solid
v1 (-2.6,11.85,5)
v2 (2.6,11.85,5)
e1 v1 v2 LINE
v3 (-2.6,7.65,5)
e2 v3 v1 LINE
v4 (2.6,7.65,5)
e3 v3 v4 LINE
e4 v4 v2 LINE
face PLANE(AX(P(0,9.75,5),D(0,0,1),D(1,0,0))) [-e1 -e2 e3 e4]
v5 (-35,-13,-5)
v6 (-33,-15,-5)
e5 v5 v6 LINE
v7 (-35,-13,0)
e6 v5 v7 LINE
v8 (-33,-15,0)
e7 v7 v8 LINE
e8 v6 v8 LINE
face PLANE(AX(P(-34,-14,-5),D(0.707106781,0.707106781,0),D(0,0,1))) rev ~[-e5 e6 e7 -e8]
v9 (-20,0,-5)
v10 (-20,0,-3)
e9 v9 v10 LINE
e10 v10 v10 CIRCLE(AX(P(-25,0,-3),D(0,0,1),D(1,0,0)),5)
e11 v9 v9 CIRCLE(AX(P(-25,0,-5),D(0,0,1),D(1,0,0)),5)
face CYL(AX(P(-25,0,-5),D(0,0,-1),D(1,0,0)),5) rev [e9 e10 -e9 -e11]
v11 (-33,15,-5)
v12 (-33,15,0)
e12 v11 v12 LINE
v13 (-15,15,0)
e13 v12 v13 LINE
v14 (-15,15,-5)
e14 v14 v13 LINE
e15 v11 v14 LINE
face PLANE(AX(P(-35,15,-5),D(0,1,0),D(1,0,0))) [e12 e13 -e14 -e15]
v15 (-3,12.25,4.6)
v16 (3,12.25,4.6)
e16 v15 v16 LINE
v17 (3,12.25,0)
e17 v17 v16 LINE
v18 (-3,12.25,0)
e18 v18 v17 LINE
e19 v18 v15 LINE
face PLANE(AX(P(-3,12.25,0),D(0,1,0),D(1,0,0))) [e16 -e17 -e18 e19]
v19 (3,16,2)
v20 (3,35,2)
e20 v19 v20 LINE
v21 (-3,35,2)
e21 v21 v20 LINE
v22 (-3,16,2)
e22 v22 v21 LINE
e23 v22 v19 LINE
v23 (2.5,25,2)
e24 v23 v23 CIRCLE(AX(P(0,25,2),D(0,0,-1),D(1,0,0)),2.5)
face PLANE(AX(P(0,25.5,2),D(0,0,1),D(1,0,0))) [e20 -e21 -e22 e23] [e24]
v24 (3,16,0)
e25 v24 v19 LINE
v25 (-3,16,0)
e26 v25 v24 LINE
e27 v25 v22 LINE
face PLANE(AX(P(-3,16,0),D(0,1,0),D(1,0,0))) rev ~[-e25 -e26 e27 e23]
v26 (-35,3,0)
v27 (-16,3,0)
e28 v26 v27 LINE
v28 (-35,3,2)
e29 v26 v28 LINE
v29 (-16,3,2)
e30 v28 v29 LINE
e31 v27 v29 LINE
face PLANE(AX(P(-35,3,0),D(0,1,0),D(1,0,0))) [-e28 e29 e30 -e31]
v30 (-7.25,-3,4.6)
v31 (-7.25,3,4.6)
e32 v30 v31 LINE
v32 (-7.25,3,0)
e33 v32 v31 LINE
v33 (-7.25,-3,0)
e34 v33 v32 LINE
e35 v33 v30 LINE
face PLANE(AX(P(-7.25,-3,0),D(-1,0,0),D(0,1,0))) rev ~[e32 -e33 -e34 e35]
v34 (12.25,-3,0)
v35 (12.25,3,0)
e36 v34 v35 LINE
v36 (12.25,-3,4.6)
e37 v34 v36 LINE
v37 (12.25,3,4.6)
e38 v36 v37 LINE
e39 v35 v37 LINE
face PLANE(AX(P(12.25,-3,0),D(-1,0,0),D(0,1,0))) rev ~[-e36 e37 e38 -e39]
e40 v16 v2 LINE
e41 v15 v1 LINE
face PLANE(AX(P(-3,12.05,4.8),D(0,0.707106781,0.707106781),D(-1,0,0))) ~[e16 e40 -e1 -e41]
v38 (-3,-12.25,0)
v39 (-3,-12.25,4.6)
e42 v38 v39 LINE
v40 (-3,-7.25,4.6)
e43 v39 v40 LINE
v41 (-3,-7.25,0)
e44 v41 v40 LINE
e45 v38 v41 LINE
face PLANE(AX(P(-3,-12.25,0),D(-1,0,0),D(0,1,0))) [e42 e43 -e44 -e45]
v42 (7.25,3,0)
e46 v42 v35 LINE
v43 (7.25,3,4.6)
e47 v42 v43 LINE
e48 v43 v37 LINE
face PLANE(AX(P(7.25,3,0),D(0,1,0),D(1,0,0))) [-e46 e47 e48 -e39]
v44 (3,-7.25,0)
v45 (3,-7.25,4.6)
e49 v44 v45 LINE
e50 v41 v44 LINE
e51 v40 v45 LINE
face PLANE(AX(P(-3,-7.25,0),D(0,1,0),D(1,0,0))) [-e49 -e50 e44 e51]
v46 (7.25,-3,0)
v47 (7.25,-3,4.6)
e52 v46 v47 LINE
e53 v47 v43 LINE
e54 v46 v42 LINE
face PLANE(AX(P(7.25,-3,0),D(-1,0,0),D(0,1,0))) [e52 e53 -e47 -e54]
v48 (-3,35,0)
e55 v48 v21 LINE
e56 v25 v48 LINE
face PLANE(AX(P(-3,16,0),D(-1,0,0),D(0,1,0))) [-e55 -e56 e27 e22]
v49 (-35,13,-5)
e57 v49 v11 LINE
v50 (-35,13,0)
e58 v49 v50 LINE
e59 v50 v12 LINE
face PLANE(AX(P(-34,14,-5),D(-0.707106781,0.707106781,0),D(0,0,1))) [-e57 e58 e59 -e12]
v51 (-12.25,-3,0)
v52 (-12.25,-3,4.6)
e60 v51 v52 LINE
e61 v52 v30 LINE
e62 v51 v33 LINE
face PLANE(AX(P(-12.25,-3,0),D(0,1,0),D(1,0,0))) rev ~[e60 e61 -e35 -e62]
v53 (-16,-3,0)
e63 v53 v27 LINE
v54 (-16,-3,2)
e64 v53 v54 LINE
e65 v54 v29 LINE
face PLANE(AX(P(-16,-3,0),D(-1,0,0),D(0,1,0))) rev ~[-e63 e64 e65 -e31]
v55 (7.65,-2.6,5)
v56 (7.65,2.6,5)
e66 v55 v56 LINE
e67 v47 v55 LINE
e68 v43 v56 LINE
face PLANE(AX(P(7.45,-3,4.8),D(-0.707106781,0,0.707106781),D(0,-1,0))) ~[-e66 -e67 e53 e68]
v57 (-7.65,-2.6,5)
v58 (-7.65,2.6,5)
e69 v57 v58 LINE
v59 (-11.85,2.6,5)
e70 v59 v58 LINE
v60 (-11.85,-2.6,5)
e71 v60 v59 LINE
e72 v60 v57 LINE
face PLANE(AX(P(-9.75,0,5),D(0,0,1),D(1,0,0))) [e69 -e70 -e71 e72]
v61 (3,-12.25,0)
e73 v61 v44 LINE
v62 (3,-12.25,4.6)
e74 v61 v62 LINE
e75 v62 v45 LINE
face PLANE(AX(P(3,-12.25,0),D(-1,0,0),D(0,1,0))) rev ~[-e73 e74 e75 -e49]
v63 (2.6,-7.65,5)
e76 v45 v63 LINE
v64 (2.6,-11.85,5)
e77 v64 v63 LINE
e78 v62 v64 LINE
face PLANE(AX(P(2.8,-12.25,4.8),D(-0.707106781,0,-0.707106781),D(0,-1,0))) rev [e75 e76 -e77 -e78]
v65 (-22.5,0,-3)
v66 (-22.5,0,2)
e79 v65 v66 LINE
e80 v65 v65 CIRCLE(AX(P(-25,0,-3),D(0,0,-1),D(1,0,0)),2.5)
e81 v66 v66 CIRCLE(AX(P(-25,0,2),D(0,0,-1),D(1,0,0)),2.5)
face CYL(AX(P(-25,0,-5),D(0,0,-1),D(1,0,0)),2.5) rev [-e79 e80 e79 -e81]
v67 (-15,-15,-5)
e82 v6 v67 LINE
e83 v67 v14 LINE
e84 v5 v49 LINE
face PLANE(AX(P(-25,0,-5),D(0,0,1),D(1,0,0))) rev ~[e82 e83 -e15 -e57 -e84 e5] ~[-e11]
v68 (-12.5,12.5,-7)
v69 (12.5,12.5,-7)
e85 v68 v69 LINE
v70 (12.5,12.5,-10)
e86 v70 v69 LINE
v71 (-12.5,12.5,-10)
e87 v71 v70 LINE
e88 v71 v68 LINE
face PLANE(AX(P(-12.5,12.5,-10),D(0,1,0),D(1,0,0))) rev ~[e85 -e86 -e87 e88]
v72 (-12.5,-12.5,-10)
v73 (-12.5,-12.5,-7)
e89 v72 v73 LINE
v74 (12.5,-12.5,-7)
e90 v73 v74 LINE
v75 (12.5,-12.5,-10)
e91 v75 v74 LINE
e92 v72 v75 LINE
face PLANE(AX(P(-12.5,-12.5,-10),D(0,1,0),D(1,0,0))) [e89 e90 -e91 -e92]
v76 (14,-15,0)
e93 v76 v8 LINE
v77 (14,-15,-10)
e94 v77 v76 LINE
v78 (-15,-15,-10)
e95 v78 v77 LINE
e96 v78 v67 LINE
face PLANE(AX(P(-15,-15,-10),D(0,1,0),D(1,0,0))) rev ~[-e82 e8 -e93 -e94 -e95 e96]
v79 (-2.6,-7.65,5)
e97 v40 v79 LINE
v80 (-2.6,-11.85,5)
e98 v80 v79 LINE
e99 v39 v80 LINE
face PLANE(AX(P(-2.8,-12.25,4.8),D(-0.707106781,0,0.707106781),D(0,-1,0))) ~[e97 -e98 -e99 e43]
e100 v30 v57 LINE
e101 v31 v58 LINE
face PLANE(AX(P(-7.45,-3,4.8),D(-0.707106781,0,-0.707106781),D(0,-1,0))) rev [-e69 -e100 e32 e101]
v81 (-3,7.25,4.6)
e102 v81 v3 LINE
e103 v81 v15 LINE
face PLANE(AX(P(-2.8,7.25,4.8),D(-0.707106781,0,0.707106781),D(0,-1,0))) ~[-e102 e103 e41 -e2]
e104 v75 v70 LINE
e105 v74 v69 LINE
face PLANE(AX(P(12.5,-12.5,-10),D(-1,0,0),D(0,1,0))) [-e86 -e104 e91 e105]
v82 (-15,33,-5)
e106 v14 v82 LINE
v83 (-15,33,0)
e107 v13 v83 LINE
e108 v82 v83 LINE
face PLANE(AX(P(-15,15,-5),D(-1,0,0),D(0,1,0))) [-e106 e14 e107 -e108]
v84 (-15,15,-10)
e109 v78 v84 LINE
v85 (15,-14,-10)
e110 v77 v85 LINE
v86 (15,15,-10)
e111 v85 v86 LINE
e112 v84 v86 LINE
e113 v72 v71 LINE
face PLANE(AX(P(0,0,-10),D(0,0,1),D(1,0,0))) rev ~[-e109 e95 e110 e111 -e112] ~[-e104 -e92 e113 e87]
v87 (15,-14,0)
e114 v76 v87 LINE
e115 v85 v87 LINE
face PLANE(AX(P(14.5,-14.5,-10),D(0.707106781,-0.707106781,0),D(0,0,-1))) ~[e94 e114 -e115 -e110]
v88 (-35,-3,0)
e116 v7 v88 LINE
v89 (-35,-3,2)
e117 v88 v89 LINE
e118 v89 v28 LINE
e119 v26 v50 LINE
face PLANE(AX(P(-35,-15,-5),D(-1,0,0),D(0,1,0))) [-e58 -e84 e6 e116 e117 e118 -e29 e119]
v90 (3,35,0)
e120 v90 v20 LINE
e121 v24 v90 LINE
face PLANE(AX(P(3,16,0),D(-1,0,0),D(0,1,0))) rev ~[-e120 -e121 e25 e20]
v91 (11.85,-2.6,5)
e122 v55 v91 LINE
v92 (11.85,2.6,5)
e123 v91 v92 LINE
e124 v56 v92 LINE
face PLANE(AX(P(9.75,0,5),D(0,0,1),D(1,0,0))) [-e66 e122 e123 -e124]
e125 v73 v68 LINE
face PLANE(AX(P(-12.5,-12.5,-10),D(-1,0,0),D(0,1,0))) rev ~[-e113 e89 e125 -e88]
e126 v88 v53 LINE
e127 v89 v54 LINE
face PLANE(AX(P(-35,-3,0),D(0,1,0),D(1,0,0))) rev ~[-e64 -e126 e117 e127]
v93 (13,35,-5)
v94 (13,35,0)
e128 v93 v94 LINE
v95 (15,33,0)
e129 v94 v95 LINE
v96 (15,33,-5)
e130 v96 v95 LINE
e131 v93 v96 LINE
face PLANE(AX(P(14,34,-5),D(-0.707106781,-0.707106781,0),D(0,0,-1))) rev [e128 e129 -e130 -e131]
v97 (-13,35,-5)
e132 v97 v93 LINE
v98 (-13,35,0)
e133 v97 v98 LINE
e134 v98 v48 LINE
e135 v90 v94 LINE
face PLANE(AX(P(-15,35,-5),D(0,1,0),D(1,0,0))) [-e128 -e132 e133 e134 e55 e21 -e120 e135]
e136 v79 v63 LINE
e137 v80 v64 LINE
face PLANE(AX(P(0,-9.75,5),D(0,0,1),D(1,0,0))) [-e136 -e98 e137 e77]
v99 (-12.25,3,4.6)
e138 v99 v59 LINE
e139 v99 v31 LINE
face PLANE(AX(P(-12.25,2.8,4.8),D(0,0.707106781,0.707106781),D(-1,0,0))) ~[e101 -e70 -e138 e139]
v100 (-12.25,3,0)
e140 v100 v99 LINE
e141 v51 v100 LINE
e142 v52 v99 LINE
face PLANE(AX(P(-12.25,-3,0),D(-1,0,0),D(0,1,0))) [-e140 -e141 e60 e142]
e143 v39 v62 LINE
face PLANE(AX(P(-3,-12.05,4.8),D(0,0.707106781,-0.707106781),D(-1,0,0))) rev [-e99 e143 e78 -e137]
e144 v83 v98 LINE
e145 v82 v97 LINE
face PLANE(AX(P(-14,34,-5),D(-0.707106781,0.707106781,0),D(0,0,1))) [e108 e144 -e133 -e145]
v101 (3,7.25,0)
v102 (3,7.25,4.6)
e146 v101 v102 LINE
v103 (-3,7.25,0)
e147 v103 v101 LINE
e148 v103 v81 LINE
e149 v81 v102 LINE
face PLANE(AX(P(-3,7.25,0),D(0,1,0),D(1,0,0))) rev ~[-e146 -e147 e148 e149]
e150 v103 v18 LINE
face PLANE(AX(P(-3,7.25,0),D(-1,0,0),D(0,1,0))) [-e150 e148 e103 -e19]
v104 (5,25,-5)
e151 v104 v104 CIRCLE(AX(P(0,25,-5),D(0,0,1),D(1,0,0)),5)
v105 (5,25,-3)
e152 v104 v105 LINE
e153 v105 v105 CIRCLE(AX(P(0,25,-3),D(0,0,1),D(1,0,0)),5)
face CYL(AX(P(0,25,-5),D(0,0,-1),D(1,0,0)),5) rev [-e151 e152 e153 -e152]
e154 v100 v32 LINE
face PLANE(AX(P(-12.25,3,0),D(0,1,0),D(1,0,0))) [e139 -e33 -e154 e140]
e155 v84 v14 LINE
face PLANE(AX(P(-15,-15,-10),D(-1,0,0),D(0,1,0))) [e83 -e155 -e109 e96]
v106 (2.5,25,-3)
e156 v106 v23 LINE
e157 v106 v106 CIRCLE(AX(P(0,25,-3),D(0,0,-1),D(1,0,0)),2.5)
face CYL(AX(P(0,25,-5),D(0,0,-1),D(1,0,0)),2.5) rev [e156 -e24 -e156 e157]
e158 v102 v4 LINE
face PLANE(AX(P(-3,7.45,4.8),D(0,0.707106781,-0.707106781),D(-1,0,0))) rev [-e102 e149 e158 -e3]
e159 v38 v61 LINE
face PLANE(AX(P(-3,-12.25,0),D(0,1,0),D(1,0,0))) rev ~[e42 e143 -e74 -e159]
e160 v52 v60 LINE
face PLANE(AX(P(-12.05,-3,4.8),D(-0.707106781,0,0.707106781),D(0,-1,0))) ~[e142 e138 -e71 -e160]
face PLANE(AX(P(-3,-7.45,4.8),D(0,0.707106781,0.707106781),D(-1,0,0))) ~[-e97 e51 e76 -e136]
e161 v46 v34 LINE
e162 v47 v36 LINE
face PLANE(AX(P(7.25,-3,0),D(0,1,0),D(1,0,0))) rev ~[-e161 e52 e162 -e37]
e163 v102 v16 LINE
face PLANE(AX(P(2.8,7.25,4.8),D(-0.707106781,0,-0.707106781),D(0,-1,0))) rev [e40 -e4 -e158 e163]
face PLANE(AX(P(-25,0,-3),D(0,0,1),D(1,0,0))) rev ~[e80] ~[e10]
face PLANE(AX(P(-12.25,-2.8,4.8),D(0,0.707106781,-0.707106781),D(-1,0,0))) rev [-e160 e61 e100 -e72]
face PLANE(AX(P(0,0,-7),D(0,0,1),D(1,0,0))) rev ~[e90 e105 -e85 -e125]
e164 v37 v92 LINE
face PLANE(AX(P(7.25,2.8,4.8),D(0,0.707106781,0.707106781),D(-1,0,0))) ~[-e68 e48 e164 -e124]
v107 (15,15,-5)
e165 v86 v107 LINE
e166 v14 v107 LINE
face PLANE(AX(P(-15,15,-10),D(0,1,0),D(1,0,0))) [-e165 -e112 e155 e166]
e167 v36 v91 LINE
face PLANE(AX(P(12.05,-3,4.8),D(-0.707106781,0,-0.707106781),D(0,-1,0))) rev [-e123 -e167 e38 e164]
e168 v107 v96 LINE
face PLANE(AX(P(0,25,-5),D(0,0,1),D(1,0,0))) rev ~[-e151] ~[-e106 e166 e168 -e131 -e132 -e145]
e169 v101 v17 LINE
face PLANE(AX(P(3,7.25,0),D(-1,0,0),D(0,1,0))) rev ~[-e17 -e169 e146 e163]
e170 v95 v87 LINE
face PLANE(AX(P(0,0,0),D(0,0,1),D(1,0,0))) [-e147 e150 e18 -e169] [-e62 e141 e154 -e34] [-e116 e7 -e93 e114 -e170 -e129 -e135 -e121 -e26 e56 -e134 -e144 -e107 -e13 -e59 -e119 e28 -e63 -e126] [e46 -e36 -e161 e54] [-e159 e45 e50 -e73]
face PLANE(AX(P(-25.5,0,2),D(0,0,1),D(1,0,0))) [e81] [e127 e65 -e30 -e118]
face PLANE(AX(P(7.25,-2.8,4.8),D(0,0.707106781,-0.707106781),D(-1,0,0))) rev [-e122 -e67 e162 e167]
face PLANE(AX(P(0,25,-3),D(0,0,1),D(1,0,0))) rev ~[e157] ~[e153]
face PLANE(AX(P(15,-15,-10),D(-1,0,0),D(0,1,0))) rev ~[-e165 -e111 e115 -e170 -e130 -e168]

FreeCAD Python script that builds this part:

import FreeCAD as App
import Part
import Sketcher

V = App.Vector
Q = App.Units.Quantity


def edges_at(feature, points):
    """Names of the edges that pass closest to the given points."""
    edges = feature.Shape.Edges
    near = lambda p: min(range(len(edges)), key=lambda i: edges[i].distToShape(Part.Vertex(*p))[0])
    return sorted({f"Edge{near(p) + 1}" for p in points})

doc = App.newDocument("Part")
params = doc.addObject("Spreadsheet::Sheet", "Params")
for row, (alias, value) in enumerate([
    ("sketch1_width", "25 mm"),
    ("pad1_length", "3 mm"),
    ("sketch2_diameter", "10 mm"),
    ("pad2_length", "2 mm"),
    ("sketch3_diameter", "10 mm"),
    ("pad3_length", "2 mm"),
    ("sketch4_width", "5 mm"),
    ("sketch4_height", "6 mm"),
    ("pad4_length", "5 mm"),
    ("chamfer_size", "0.4 mm"),
    ("sketch5_width", "5 mm"),
    ("sketch5_height", "6 mm"),
    ("pad5_length", "5 mm"),
    ("chamfer2_size", "0.4 mm"),
    ("sketch6_width", "6 mm"),
    ("sketch6_height", "5 mm"),
    ("pad6_length", "5 mm"),
    ("chamfer3_size", "0.4 mm"),
    ("sketch7_diameter", "5 mm"),
    ("pad7_length", "10 mm"),
    ("sketch8_width", "30 mm"),
    ("sketch8_height", "20 mm"),
    ("pad8_length", "5 mm"),
    ("sketch9_width", "6 mm"),
    ("sketch9_height", "19 mm"),
    ("pad9_length", "2 mm"),
    ("chamfer4_size", "2 mm"),
    ("sketch10_diameter", "5 mm"),
    ("pad10_length", "10 mm"),
    ("sketch11_width", "20 mm"),
    ("sketch11_height", "30 mm"),
    ("pad11_length", "5 mm"),
    ("sketch12_width", "19 mm"),
    ("sketch12_height", "6 mm"),
    ("pad12_length", "2 mm"),
    ("chamfer5_size", "2 mm"),
    ("sketch13_width", "30 mm"),
    ("pad13_length", "10 mm"),
    ("sketch14_width", "6 mm"),
    ("sketch14_height", "5 mm"),
    ("pad14_length", "5 mm"),
    ("chamfer6_size", "0.4 mm"),
    ("chamfer7_size", "1 mm"),
], start=1):
    params.set(f"A{row}", alias)
    params.set(f"B{row}", "=" + value)
    params.setAlias(f"B{row}", alias)

body = doc.addObject("PartDesign::Body", "Body")

sketch1 = body.newObject("Sketcher::SketchObject", "Sketch")
sketch1.AttachmentSupport = (doc.getObject("XY_Plane"), [""])
sketch1.MapMode = "FlatFace"
sketch1.AttachmentOffset = App.Placement(V(0, 0, -10), App.Rotation())
sketch1.addGeometry(Part.LineSegment(V(-12, 12, 0), V(-12, -12, 0)), False)
sketch1.addGeometry(Part.LineSegment(V(-12, -12, 0), V(12, -12, 0)), False)
sketch1.addGeometry(Part.LineSegment(V(12, -12, 0), V(12, 12, 0)), False)
sketch1.addGeometry(Part.LineSegment(V(12, 12, 0), V(-12, 12, 0)), False)
sketch1.addConstraint(Sketcher.Constraint("Coincident", 0, 2, 1, 1))
sketch1.addConstraint(Sketcher.Constraint("Coincident", 1, 2, 2, 1))
sketch1.addConstraint(Sketcher.Constraint("Coincident", 2, 2, 3, 1))
sketch1.addConstraint(Sketcher.Constraint("Coincident", 3, 2, 0, 1))
sketch1.addConstraint(Sketcher.Constraint("Vertical", 0))
sketch1.addConstraint(Sketcher.Constraint("Horizontal", 1))
sketch1.addConstraint(Sketcher.Constraint("Vertical", 2))
sketch1.addConstraint(Sketcher.Constraint("Horizontal", 3))
sketch1.addConstraint(Sketcher.Constraint("Symmetric", 0, 2, 2, 2, -1, 1))
sketch1.addConstraint(Sketcher.Constraint("Equal", 3, 0))
sketch1.addConstraint(Sketcher.Constraint("DistanceX", 1, 1, 1, 2, Q("25 mm")))
sketch1.setExpression("Constraints[10]", "Params.sketch1_width")
pad1 = body.newObject("PartDesign::Pad", "Pad")
pad1.Profile = sketch1
pad1.setExpression("Length", "Params.pad1_length")
body2 = doc.addObject("PartDesign::Body", "Body001")

sketch2 = body2.newObject("Sketcher::SketchObject", "Sketch001")
sketch2.AttachmentSupport = (doc.getObject("XY_Plane001"), [""])
sketch2.MapMode = "FlatFace"
sketch2.AttachmentOffset = App.Placement(V(0, 0, -5), App.Rotation())
sketch2.addGeometry(Part.Circle(V(0, 25, 0), V(0, 0, 1), 5), False)
sketch2.addConstraint(Sketcher.Constraint("PointOnObject", 0, 3, -2))
sketch2.addConstraint(Sketcher.Constraint("Diameter", 0, Q("10 mm")))
sketch2.addConstraint(Sketcher.Constraint("DistanceY", -1, 1, 0, 3, Q("25 mm")))
sketch2.setExpression("Constraints[1]", "Params.sketch2_diameter")
pad2 = body2.newObject("PartDesign::Pad", "Pad001")
pad2.Profile = sketch2
pad2.setExpression("Length", "Params.pad2_length")
body3 = doc.addObject("PartDesign::Body", "Body002")

sketch3 = body3.newObject("Sketcher::SketchObject", "Sketch002")
sketch3.AttachmentSupport = (doc.getObject("XY_Plane002"), [""])
sketch3.MapMode = "FlatFace"
sketch3.AttachmentOffset = App.Placement(V(0, 0, -5), App.Rotation())
sketch3.addGeometry(Part.Circle(V(-25, 0, 0), V(0, 0, 1), 5), False)
sketch3.addConstraint(Sketcher.Constraint("PointOnObject", 0, 3, -1))
sketch3.addConstraint(Sketcher.Constraint("Diameter", 0, Q("10 mm")))
sketch3.addConstraint(Sketcher.Constraint("DistanceX", 0, 3, -1, 1, Q("25 mm")))
sketch3.setExpression("Constraints[1]", "Params.sketch3_diameter")
pad3 = body3.newObject("PartDesign::Pad", "Pad002")
pad3.Profile = sketch3
pad3.setExpression("Length", "Params.pad3_length")
body4 = doc.addObject("PartDesign::Body", "Body003")

sketch4 = body4.newObject("Sketcher::SketchObject", "Sketch003")
sketch4.AttachmentSupport = (doc.getObject("XY_Plane003"), [""])
sketch4.MapMode = "FlatFace"
sketch4.addGeometry(Part.LineSegment(V(-12, 3, 0), V(-12, -3, 0)), False)
sketch4.addGeometry(Part.LineSegment(V(-12, -3, 0), V(-7, -3, 0)), False)
sketch4.addGeometry(Part.LineSegment(V(-7, -3, 0), V(-7, 3, 0)), False)
sketch4.addGeometry(Part.LineSegment(V(-7, 3, 0), V(-12, 3, 0)), False)
sketch4.addConstraint(Sketcher.Constraint("Coincident", 0, 2, 1, 1))
sketch4.addConstraint(Sketcher.Constraint("Coincident", 1, 2, 2, 1))
sketch4.addConstraint(Sketcher.Constraint("Coincident", 2, 2, 3, 1))
sketch4.addConstraint(Sketcher.Constraint("Coincident", 3, 2, 0, 1))
sketch4.addConstraint(Sketcher.Constraint("Vertical", 0))
sketch4.addConstraint(Sketcher.Constraint("Horizontal", 1))
sketch4.addConstraint(Sketcher.Constraint("Vertical", 2))
sketch4.addConstraint(Sketcher.Constraint("Horizontal", 3))
sketch4.addConstraint(Sketcher.Constraint("DistanceX", 1, 1, 1, 2, Q("5 mm")))
sketch4.addConstraint(Sketcher.Constraint("DistanceY", 0, 2, 0, 1, Q("6 mm")))
sketch4.addConstraint(Sketcher.Constraint("DistanceY", 0, 2, -1, 1, Q("3 mm")))
sketch4.addConstraint(Sketcher.Constraint("DistanceX", 0, 2, -1, 1, Q("12.25 mm")))
sketch4.setExpression("Constraints[8]", "Params.sketch4_width")
sketch4.setExpression("Constraints[9]", "Params.sketch4_height")
pad4 = body4.newObject("PartDesign::Pad", "Pad003")
pad4.Profile = sketch4
pad4.setExpression("Length", "Params.pad4_length")
doc.recompute()

chamfer = body4.newObject("PartDesign::Chamfer", "Chamfer")
chamfer.Base = (pad4, edges_at(pad4, [
    (-12.25, 0, 5),
    (-7.25, 0, 5),
    (-9.75, -3, 5),
    (-9.75, 3, 5),
]))
chamfer.setExpression("Size", "Params.chamfer_size")
body5 = doc.addObject("PartDesign::Body", "Body004")

sketch5 = body5.newObject("Sketcher::SketchObject", "Sketch004")
sketch5.AttachmentSupport = (doc.getObject("XY_Plane004"), [""])
sketch5.MapMode = "FlatFace"
sketch5.addGeometry(Part.LineSegment(V(7, 3, 0), V(7, -3, 0)), False)
sketch5.addGeometry(Part.LineSegment(V(7, -3, 0), V(12, -3, 0)), False)
sketch5.addGeometry(Part.LineSegment(V(12, -3, 0), V(12, 3, 0)), False)
sketch5.addGeometry(Part.LineSegment(V(12, 3, 0), V(7, 3, 0)), False)
sketch5.addConstraint(Sketcher.Constraint("Coincident", 0, 2, 1, 1))
sketch5.addConstraint(Sketcher.Constraint("Coincident", 1, 2, 2, 1))
sketch5.addConstraint(Sketcher.Constraint("Coincident", 2, 2, 3, 1))
sketch5.addConstraint(Sketcher.Constraint("Coincident", 3, 2, 0, 1))
sketch5.addConstraint(Sketcher.Constraint("Vertical", 0))
sketch5.addConstraint(Sketcher.Constraint("Horizontal", 1))
sketch5.addConstraint(Sketcher.Constraint("Vertical", 2))
sketch5.addConstraint(Sketcher.Constraint("Horizontal", 3))
sketch5.addConstraint(Sketcher.Constraint("DistanceX", 1, 1, 1, 2, Q("5 mm")))
sketch5.addConstraint(Sketcher.Constraint("DistanceY", 0, 2, 0, 1, Q("6 mm")))
sketch5.addConstraint(Sketcher.Constraint("DistanceY", 0, 2, -1, 1, Q("3 mm")))
sketch5.addConstraint(Sketcher.Constraint("DistanceX", -1, 1, 0, 2, Q("7.25 mm")))
sketch5.setExpression("Constraints[8]", "Params.sketch5_width")
sketch5.setExpression("Constraints[9]", "Params.sketch5_height")
pad5 = body5.newObject("PartDesign::Pad", "Pad004")
pad5.Profile = sketch5
pad5.setExpression("Length", "Params.pad5_length")
doc.recompute()

chamfer2 = body5.newObject("PartDesign::Chamfer", "Chamfer001")
chamfer2.Base = (pad5, edges_at(pad5, [
    (7.25, 0, 5),
    (12.25, 0, 5),
    (9.75, -3, 5),
    (9.75, 3, 5),
]))
chamfer2.setExpression("Size", "Params.chamfer2_size")
body6 = doc.addObject("PartDesign::Body", "Body005")

sketch6 = body6.newObject("Sketcher::SketchObject", "Sketch005")
sketch6.AttachmentSupport = (doc.getObject("XY_Plane005"), [""])
sketch6.MapMode = "FlatFace"
sketch6.addGeometry(Part.LineSegment(V(-3, -7, 0), V(-3, -12, 0)), False)
sketch6.addGeometry(Part.LineSegment(V(-3, -12, 0), V(3, -12, 0)), False)
sketch6.addGeometry(Part.LineSegment(V(3, -12, 0), V(3, -7, 0)), False)
sketch6.addGeometry(Part.LineSegment(V(3, -7, 0), V(-3, -7, 0)), False)
sketch6.addConstraint(Sketcher.Constraint("Coincident", 0, 2, 1, 1))
sketch6.addConstraint(Sketcher.Constraint("Coincident", 1, 2, 2, 1))
sketch6.addConstraint(Sketcher.Constraint("Coincident", 2, 2, 3, 1))
sketch6.addConstraint(Sketcher.Constraint("Coincident", 3, 2, 0, 1))
sketch6.addConstraint(Sketcher.Constraint("Vertical", 0))
sketch6.addConstraint(Sketcher.Constraint("Horizontal", 1))
sketch6.addConstraint(Sketcher.Constraint("Vertical", 2))
sketch6.addConstraint(Sketcher.Constraint("Horizontal", 3))
sketch6.addConstraint(Sketcher.Constraint("DistanceX", 1, 1, 1, 2, Q("6 mm")))
sketch6.addConstraint(Sketcher.Constraint("DistanceY", 0, 2, 0, 1, Q("5 mm")))
sketch6.addConstraint(Sketcher.Constraint("DistanceX", 0, 2, -1, 1, Q("3 mm")))
sketch6.addConstraint(Sketcher.Constraint("DistanceY", 0, 2, -1, 1, Q("12.25 mm")))
sketch6.setExpression("Constraints[8]", "Params.sketch6_width")
sketch6.setExpression("Constraints[9]", "Params.sketch6_height")
pad6 = body6.newObject("PartDesign::Pad", "Pad005")
pad6.Profile = sketch6
pad6.setExpression("Length", "Params.pad6_length")
doc.recompute()

chamfer3 = body6.newObject("PartDesign::Chamfer", "Chamfer002")
chamfer3.Base = (pad6, edges_at(pad6, [
    (-3, -9.75, 5),
    (3, -9.75, 5),
    (0, -12.25, 5),
    (0, -7.25, 5),
]))
chamfer3.setExpression("Size", "Params.chamfer3_size")
body7 = doc.addObject("PartDesign::Body", "Body006")

sketch7 = body7.newObject("Sketcher::SketchObject", "Sketch006")
sketch7.AttachmentSupport = (doc.getObject("XY_Plane006"), [""])
sketch7.MapMode = "FlatFace"
sketch7.AttachmentOffset = App.Placement(V(0, 0, -5), App.Rotation())
sketch7.addGeometry(Part.Circle(V(0, 25, 0), V(0, 0, 1), 2.5), False)
sketch7.addConstraint(Sketcher.Constraint("PointOnObject", 0, 3, -2))
sketch7.addConstraint(Sketcher.Constraint("Diameter", 0, Q("5 mm")))
sketch7.addConstraint(Sketcher.Constraint("DistanceY", -1, 1, 0, 3, Q("25 mm")))
sketch7.setExpression("Constraints[1]", "Params.sketch7_diameter")
pad7 = body7.newObject("PartDesign::Pad", "Pad006")
pad7.Profile = sketch7
pad7.setExpression("Length", "Params.pad7_length")
body8 = doc.addObject("PartDesign::Body", "Body007")

sketch8 = body8.newObject("Sketcher::SketchObject", "Sketch007")
sketch8.AttachmentSupport = (doc.getObject("XY_Plane007"), [""])
sketch8.MapMode = "FlatFace"
sketch8.AttachmentOffset = App.Placement(V(0, 0, -5), App.Rotation())
sketch8.addGeometry(Part.LineSegment(V(-15, 35, 0), V(-15, 15, 0)), False)
sketch8.addGeometry(Part.LineSegment(V(-15, 15, 0), V(15, 15, 0)), False)
sketch8.addGeometry(Part.LineSegment(V(15, 15, 0), V(15, 35, 0)), False)
sketch8.addGeometry(Part.LineSegment(V(15, 35, 0), V(-15, 35, 0)), False)
sketch8.addConstraint(Sketcher.Constraint("Coincident", 0, 2, 1, 1))
sketch8.addConstraint(Sketcher.Constraint("Coincident", 1, 2, 2, 1))
sketch8.addConstraint(Sketcher.Constraint("Coincident", 2, 2, 3, 1))
sketch8.addConstraint(Sketcher.Constraint("Coincident", 3, 2, 0, 1))
sketch8.addConstraint(Sketcher.Constraint("Vertical", 0))
sketch8.addConstraint(Sketcher.Constraint("Horizontal", 1))
sketch8.addConstraint(Sketcher.Constraint("Vertical", 2))
sketch8.addConstraint(Sketcher.Constraint("Horizontal", 3))
sketch8.addConstraint(Sketcher.Constraint("DistanceX", 1, 1, 1, 2, Q("30 mm")))
sketch8.addConstraint(Sketcher.Constraint("DistanceY", 0, 2, 0, 1, Q("20 mm")))
sketch8.addConstraint(Sketcher.Constraint("DistanceX", 0, 2, -1, 1, Q("15 mm")))
sketch8.addConstraint(Sketcher.Constraint("DistanceY", -1, 1, 0, 2, Q("15 mm")))
sketch8.setExpression("Constraints[8]", "Params.sketch8_width")
sketch8.setExpression("Constraints[9]", "Params.sketch8_height")
pad8 = body8.newObject("PartDesign::Pad", "Pad007")
pad8.Profile = sketch8
pad8.setExpression("Length", "Params.pad8_length")
body9 = doc.addObject("PartDesign::Body", "Body008")

sketch9 = body9.newObject("Sketcher::SketchObject", "Sketch008")
sketch9.AttachmentSupport = (doc.getObject("XY_Plane008"), [""])
sketch9.MapMode = "FlatFace"
sketch9.addGeometry(Part.LineSegment(V(-3, 35, 0), V(-3, 16, 0)), False)
sketch9.addGeometry(Part.LineSegment(V(-3, 16, 0), V(3, 16, 0)), False)
sketch9.addGeometry(Part.LineSegment(V(3, 16, 0), V(3, 35, 0)), False)
sketch9.addGeometry(Part.LineSegment(V(3, 35, 0), V(-3, 35, 0)), False)
sketch9.addConstraint(Sketcher.Constraint("Coincident", 0, 2, 1, 1))
sketch9.addConstraint(Sketcher.Constraint("Coincident", 1, 2, 2, 1))
sketch9.addConstraint(Sketcher.Constraint("Coincident", 2, 2, 3, 1))
sketch9.addConstraint(Sketcher.Constraint("Coincident", 3, 2, 0, 1))
sketch9.addConstraint(Sketcher.Constraint("Vertical", 0))
sketch9.addConstraint(Sketcher.Constraint("Horizontal", 1))
sketch9.addConstraint(Sketcher.Constraint("Vertical", 2))
sketch9.addConstraint(Sketcher.Constraint("Horizontal", 3))
sketch9.addConstraint(Sketcher.Constraint("DistanceX", 1, 1, 1, 2, Q("6 mm")))
sketch9.addConstraint(Sketcher.Constraint("DistanceY", 0, 2, 0, 1, Q("19 mm")))
sketch9.addConstraint(Sketcher.Constraint("DistanceX", 0, 2, -1, 1, Q("3 mm")))
sketch9.addConstraint(Sketcher.Constraint("DistanceY", -1, 1, 0, 2, Q("16 mm")))
sketch9.setExpression("Constraints[8]", "Params.sketch9_width")
sketch9.setExpression("Constraints[9]", "Params.sketch9_height")
pad9 = body9.newObject("PartDesign::Pad", "Pad008")
pad9.Profile = sketch9
pad9.setExpression("Length", "Params.pad9_length")
doc.recompute()

boolean = body9.newObject("PartDesign::Boolean", "Boolean")
boolean.Type = "Fuse"
boolean.addObjects([body8])
doc.recompute()

boolean2 = body9.newObject("PartDesign::Boolean", "Boolean001")
boolean2.Type = "Cut"
boolean2.addObjects([body7])
doc.recompute()

chamfer4 = body9.newObject("PartDesign::Chamfer", "Chamfer003")
chamfer4.Base = (boolean2, edges_at(boolean2, [(-15, 35, -2.5), (15, 35, -2.5)]))
chamfer4.setExpression("Size", "Params.chamfer4_size")
body10 = doc.addObject("PartDesign::Body", "Body009")

sketch10 = body10.newObject("Sketcher::SketchObject", "Sketch009")
sketch10.AttachmentSupport = (doc.getObject("XY_Plane009"), [""])
sketch10.MapMode = "FlatFace"
sketch10.AttachmentOffset = App.Placement(V(0, 0, -5), App.Rotation())
sketch10.addGeometry(Part.Circle(V(-25, 0, 0), V(0, 0, 1), 2.5), False)
sketch10.addConstraint(Sketcher.Constraint("PointOnObject", 0, 3, -1))
sketch10.addConstraint(Sketcher.Constraint("Diameter", 0, Q("5 mm")))
sketch10.addConstraint(Sketcher.Constraint("DistanceX", 0, 3, -1, 1, Q("25 mm")))
sketch10.setExpression("Constraints[1]", "Params.sketch10_diameter")
pad10 = body10.newObject("PartDesign::Pad", "Pad009")
pad10.Profile = sketch10
pad10.setExpression("Length", "Params.pad10_length")
body11 = doc.addObject("PartDesign::Body", "Body010")

sketch11 = body11.newObject("Sketcher::SketchObject", "Sketch010")
sketch11.AttachmentSupport = (doc.getObject("XY_Plane010"), [""])
sketch11.MapMode = "FlatFace"
sketch11.AttachmentOffset = App.Placement(V(0, 0, -5), App.Rotation())
sketch11.addGeometry(Part.LineSegment(V(-35, 15, 0), V(-35, -15, 0)), False)
sketch11.addGeometry(Part.LineSegment(V(-35, -15, 0), V(-15, -15, 0)), False)
sketch11.addGeometry(Part.LineSegment(V(-15, -15, 0), V(-15, 15, 0)), False)
sketch11.addGeometry(Part.LineSegment(V(-15, 15, 0), V(-35, 15, 0)), False)
sketch11.addConstraint(Sketcher.Constraint("Coincident", 0, 2, 1, 1))
sketch11.addConstraint(Sketcher.Constraint("Coincident", 1, 2, 2, 1))
sketch11.addConstraint(Sketcher.Constraint("Coincident", 2, 2, 3, 1))
sketch11.addConstraint(Sketcher.Constraint("Coincident", 3, 2, 0, 1))
sketch11.addConstraint(Sketcher.Constraint("Vertical", 0))
sketch11.addConstraint(Sketcher.Constraint("Horizontal", 1))
sketch11.addConstraint(Sketcher.Constraint("Vertical", 2))
sketch11.addConstraint(Sketcher.Constraint("Horizontal", 3))
sketch11.addConstraint(Sketcher.Constraint("DistanceX", 1, 1, 1, 2, Q("20 mm")))
sketch11.addConstraint(Sketcher.Constraint("DistanceY", 0, 2, 0, 1, Q("30 mm")))
sketch11.addConstraint(Sketcher.Constraint("DistanceX", 0, 2, -1, 1, Q("35 mm")))
sketch11.addConstraint(Sketcher.Constraint("DistanceY", 0, 2, -1, 1, Q("15 mm")))
sketch11.setExpression("Constraints[8]", "Params.sketch11_width")
sketch11.setExpression("Constraints[9]", "Params.sketch11_height")
pad11 = body11.newObject("PartDesign::Pad", "Pad010")
pad11.Profile = sketch11
pad11.setExpression("Length", "Params.pad11_length")
body12 = doc.addObject("PartDesign::Body", "Body011")

sketch12 = body12.newObject("Sketcher::SketchObject", "Sketch011")
sketch12.AttachmentSupport = (doc.getObject("XY_Plane011"), [""])
sketch12.MapMode = "FlatFace"
sketch12.addGeometry(Part.LineSegment(V(-35, 3, 0), V(-35, -3, 0)), False)
sketch12.addGeometry(Part.LineSegment(V(-35, -3, 0), V(-16, -3, 0)), False)
sketch12.addGeometry(Part.LineSegment(V(-16, -3, 0), V(-16, 3, 0)), False)
sketch12.addGeometry(Part.LineSegment(V(-16, 3, 0), V(-35, 3, 0)), False)
sketch12.addConstraint(Sketcher.Constraint("Coincident", 0, 2, 1, 1))
sketch12.addConstraint(Sketcher.Constraint("Coincident", 1, 2, 2, 1))
sketch12.addConstraint(Sketcher.Constraint("Coincident", 2, 2, 3, 1))
sketch12.addConstraint(Sketcher.Constraint("Coincident", 3, 2, 0, 1))
sketch12.addConstraint(Sketcher.Constraint("Vertical", 0))
sketch12.addConstraint(Sketcher.Constraint("Horizontal", 1))
sketch12.addConstraint(Sketcher.Constraint("Vertical", 2))
sketch12.addConstraint(Sketcher.Constraint("Horizontal", 3))
sketch12.addConstraint(Sketcher.Constraint("DistanceX", 1, 1, 1, 2, Q("19 mm")))
sketch12.addConstraint(Sketcher.Constraint("DistanceY", 0, 2, 0, 1, Q("6 mm")))
sketch12.addConstraint(Sketcher.Constraint("DistanceX", 0, 2, -1, 1, Q("35 mm")))
sketch12.addConstraint(Sketcher.Constraint("DistanceY", 0, 2, -1, 1, Q("3 mm")))
sketch12.setExpression("Constraints[8]", "Params.sketch12_width")
sketch12.setExpression("Constraints[9]", "Params.sketch12_height")
pad12 = body12.newObject("PartDesign::Pad", "Pad011")
pad12.Profile = sketch12
pad12.setExpression("Length", "Params.pad12_length")
doc.recompute()

boolean3 = body12.newObject("PartDesign::Boolean", "Boolean002")
boolean3.Type = "Fuse"
boolean3.addObjects([body11])
doc.recompute()

boolean4 = body12.newObject("PartDesign::Boolean", "Boolean003")
boolean4.Type = "Cut"
boolean4.addObjects([body10])
doc.recompute()

chamfer5 = body12.newObject("PartDesign::Chamfer", "Chamfer004")
chamfer5.Base = (boolean4, edges_at(boolean4, [(-35, -15, -2.5), (-35, 15, -2.5)]))
chamfer5.setExpression("Size", "Params.chamfer5_size")
body13 = doc.addObject("PartDesign::Body", "Body012")

sketch13 = body13.newObject("Sketcher::SketchObject", "Sketch012")
sketch13.AttachmentSupport = (doc.getObject("XY_Plane012"), [""])
sketch13.MapMode = "FlatFace"
sketch13.AttachmentOffset = App.Placement(V(0, 0, -10), App.Rotation())
sketch13.addGeometry(Part.LineSegment(V(-15, 15, 0), V(-15, -15, 0)), False)
sketch13.addGeometry(Part.LineSegment(V(-15, -15, 0), V(15, -15, 0)), False)
sketch13.addGeometry(Part.LineSegment(V(15, -15, 0), V(15, 15, 0)), False)
sketch13.addGeometry(Part.LineSegment(V(15, 15, 0), V(-15, 15, 0)), False)
sketch13.addConstraint(Sketcher.Constraint("Coincident", 0, 2, 1, 1))
sketch13.addConstraint(Sketcher.Constraint("Coincident", 1, 2, 2, 1))
sketch13.addConstraint(Sketcher.Constraint("Coincident", 2, 2, 3, 1))
sketch13.addConstraint(Sketcher.Constraint("Coincident", 3, 2, 0, 1))
sketch13.addConstraint(Sketcher.Constraint("Vertical", 0))
sketch13.addConstraint(Sketcher.Constraint("Horizontal", 1))
sketch13.addConstraint(Sketcher.Constraint("Vertical", 2))
sketch13.addConstraint(Sketcher.Constraint("Horizontal", 3))
sketch13.addConstraint(Sketcher.Constraint("Symmetric", 0, 2, 2, 2, -1, 1))
sketch13.addConstraint(Sketcher.Constraint("Equal", 3, 0))
sketch13.addConstraint(Sketcher.Constraint("DistanceX", 1, 1, 1, 2, Q("30 mm")))
sketch13.setExpression("Constraints[10]", "Params.sketch13_width")
pad13 = body13.newObject("PartDesign::Pad", "Pad012")
pad13.Profile = sketch13
pad13.setExpression("Length", "Params.pad13_length")
body14 = doc.addObject("PartDesign::Body", "Body013")
body14.AllowCompound = True

sketch14 = body14.newObject("Sketcher::SketchObject", "Sketch013")
sketch14.AttachmentSupport = (doc.getObject("XY_Plane013"), [""])
sketch14.MapMode = "FlatFace"
sketch14.addGeometry(Part.LineSegment(V(-3, 12, 0), V(-3, 7, 0)), False)
sketch14.addGeometry(Part.LineSegment(V(-3, 7, 0), V(3, 7, 0)), False)
sketch14.addGeometry(Part.LineSegment(V(3, 7, 0), V(3, 12, 0)), False)
sketch14.addGeometry(Part.LineSegment(V(3, 12, 0), V(-3, 12, 0)), False)
sketch14.addConstraint(Sketcher.Constraint("Coincident", 0, 2, 1, 1))
sketch14.addConstraint(Sketcher.Constraint("Coincident", 1, 2, 2, 1))
sketch14.addConstraint(Sketcher.Constraint("Coincident", 2, 2, 3, 1))
sketch14.addConstraint(Sketcher.Constraint("Coincident", 3, 2, 0, 1))
sketch14.addConstraint(Sketcher.Constraint("Vertical", 0))
sketch14.addConstraint(Sketcher.Constraint("Horizontal", 1))
sketch14.addConstraint(Sketcher.Constraint("Vertical", 2))
sketch14.addConstraint(Sketcher.Constraint("Horizontal", 3))
sketch14.addConstraint(Sketcher.Constraint("DistanceX", 1, 1, 1, 2, Q("6 mm")))
sketch14.addConstraint(Sketcher.Constraint("DistanceY", 0, 2, 0, 1, Q("5 mm")))
sketch14.addConstraint(Sketcher.Constraint("DistanceX", 0, 2, -1, 1, Q("3 mm")))
sketch14.addConstraint(Sketcher.Constraint("DistanceY", -1, 1, 0, 2, Q("7.25 mm")))
sketch14.setExpression("Constraints[8]", "Params.sketch14_width")
sketch14.setExpression("Constraints[9]", "Params.sketch14_height")
pad14 = body14.newObject("PartDesign::Pad", "Pad013")
pad14.Profile = sketch14
pad14.setExpression("Length", "Params.pad14_length")
doc.recompute()

chamfer6 = body14.newObject("PartDesign::Chamfer", "Chamfer005")
chamfer6.Base = (pad14, edges_at(pad14, [
    (-3, 9.75, 5),
    (3, 9.75, 5),
    (0, 7.25, 5),
    (0, 12.25, 5),
]))
chamfer6.setExpression("Size", "Params.chamfer6_size")
doc.recompute()

boolean5 = body14.newObject("PartDesign::Boolean", "Boolean004")
boolean5.Type = "Fuse"
boolean5.addObjects([body4])
doc.recompute()

boolean6 = body14.newObject("PartDesign::Boolean", "Boolean005")
boolean6.Type = "Fuse"
boolean6.addObjects([body5])
doc.recompute()

boolean7 = body14.newObject("PartDesign::Boolean", "Boolean006")
boolean7.Type = "Fuse"
boolean7.addObjects([body6])
doc.recompute()

boolean8 = body14.newObject("PartDesign::Boolean", "Boolean007")
boolean8.Type = "Fuse"
boolean8.addObjects([body9])
doc.recompute()

boolean9 = body14.newObject("PartDesign::Boolean", "Boolean008")
boolean9.Type = "Fuse"
boolean9.addObjects([body12])
doc.recompute()

boolean10 = body14.newObject("PartDesign::Boolean", "Boolean009")
boolean10.Type = "Fuse"
boolean10.addObjects([body13])
doc.recompute()

boolean11 = body14.newObject("PartDesign::Boolean", "Boolean010")
boolean11.Type = "Cut"
boolean11.addObjects([body3])
doc.recompute()

boolean12 = body14.newObject("PartDesign::Boolean", "Boolean011")
boolean12.Type = "Cut"
boolean12.addObjects([body2])
doc.recompute()

chamfer7 = body14.newObject("PartDesign::Chamfer", "Chamfer006")
chamfer7.Base = (boolean12, edges_at(boolean12, [(15, -15, -5)]))
chamfer7.setExpression("Size", "Params.chamfer7_size")
doc.recompute()

boolean13 = body14.newObject("PartDesign::Boolean", "Boolean012")
boolean13.Type = "Cut"
boolean13.addObjects([body])

doc.recompute()
